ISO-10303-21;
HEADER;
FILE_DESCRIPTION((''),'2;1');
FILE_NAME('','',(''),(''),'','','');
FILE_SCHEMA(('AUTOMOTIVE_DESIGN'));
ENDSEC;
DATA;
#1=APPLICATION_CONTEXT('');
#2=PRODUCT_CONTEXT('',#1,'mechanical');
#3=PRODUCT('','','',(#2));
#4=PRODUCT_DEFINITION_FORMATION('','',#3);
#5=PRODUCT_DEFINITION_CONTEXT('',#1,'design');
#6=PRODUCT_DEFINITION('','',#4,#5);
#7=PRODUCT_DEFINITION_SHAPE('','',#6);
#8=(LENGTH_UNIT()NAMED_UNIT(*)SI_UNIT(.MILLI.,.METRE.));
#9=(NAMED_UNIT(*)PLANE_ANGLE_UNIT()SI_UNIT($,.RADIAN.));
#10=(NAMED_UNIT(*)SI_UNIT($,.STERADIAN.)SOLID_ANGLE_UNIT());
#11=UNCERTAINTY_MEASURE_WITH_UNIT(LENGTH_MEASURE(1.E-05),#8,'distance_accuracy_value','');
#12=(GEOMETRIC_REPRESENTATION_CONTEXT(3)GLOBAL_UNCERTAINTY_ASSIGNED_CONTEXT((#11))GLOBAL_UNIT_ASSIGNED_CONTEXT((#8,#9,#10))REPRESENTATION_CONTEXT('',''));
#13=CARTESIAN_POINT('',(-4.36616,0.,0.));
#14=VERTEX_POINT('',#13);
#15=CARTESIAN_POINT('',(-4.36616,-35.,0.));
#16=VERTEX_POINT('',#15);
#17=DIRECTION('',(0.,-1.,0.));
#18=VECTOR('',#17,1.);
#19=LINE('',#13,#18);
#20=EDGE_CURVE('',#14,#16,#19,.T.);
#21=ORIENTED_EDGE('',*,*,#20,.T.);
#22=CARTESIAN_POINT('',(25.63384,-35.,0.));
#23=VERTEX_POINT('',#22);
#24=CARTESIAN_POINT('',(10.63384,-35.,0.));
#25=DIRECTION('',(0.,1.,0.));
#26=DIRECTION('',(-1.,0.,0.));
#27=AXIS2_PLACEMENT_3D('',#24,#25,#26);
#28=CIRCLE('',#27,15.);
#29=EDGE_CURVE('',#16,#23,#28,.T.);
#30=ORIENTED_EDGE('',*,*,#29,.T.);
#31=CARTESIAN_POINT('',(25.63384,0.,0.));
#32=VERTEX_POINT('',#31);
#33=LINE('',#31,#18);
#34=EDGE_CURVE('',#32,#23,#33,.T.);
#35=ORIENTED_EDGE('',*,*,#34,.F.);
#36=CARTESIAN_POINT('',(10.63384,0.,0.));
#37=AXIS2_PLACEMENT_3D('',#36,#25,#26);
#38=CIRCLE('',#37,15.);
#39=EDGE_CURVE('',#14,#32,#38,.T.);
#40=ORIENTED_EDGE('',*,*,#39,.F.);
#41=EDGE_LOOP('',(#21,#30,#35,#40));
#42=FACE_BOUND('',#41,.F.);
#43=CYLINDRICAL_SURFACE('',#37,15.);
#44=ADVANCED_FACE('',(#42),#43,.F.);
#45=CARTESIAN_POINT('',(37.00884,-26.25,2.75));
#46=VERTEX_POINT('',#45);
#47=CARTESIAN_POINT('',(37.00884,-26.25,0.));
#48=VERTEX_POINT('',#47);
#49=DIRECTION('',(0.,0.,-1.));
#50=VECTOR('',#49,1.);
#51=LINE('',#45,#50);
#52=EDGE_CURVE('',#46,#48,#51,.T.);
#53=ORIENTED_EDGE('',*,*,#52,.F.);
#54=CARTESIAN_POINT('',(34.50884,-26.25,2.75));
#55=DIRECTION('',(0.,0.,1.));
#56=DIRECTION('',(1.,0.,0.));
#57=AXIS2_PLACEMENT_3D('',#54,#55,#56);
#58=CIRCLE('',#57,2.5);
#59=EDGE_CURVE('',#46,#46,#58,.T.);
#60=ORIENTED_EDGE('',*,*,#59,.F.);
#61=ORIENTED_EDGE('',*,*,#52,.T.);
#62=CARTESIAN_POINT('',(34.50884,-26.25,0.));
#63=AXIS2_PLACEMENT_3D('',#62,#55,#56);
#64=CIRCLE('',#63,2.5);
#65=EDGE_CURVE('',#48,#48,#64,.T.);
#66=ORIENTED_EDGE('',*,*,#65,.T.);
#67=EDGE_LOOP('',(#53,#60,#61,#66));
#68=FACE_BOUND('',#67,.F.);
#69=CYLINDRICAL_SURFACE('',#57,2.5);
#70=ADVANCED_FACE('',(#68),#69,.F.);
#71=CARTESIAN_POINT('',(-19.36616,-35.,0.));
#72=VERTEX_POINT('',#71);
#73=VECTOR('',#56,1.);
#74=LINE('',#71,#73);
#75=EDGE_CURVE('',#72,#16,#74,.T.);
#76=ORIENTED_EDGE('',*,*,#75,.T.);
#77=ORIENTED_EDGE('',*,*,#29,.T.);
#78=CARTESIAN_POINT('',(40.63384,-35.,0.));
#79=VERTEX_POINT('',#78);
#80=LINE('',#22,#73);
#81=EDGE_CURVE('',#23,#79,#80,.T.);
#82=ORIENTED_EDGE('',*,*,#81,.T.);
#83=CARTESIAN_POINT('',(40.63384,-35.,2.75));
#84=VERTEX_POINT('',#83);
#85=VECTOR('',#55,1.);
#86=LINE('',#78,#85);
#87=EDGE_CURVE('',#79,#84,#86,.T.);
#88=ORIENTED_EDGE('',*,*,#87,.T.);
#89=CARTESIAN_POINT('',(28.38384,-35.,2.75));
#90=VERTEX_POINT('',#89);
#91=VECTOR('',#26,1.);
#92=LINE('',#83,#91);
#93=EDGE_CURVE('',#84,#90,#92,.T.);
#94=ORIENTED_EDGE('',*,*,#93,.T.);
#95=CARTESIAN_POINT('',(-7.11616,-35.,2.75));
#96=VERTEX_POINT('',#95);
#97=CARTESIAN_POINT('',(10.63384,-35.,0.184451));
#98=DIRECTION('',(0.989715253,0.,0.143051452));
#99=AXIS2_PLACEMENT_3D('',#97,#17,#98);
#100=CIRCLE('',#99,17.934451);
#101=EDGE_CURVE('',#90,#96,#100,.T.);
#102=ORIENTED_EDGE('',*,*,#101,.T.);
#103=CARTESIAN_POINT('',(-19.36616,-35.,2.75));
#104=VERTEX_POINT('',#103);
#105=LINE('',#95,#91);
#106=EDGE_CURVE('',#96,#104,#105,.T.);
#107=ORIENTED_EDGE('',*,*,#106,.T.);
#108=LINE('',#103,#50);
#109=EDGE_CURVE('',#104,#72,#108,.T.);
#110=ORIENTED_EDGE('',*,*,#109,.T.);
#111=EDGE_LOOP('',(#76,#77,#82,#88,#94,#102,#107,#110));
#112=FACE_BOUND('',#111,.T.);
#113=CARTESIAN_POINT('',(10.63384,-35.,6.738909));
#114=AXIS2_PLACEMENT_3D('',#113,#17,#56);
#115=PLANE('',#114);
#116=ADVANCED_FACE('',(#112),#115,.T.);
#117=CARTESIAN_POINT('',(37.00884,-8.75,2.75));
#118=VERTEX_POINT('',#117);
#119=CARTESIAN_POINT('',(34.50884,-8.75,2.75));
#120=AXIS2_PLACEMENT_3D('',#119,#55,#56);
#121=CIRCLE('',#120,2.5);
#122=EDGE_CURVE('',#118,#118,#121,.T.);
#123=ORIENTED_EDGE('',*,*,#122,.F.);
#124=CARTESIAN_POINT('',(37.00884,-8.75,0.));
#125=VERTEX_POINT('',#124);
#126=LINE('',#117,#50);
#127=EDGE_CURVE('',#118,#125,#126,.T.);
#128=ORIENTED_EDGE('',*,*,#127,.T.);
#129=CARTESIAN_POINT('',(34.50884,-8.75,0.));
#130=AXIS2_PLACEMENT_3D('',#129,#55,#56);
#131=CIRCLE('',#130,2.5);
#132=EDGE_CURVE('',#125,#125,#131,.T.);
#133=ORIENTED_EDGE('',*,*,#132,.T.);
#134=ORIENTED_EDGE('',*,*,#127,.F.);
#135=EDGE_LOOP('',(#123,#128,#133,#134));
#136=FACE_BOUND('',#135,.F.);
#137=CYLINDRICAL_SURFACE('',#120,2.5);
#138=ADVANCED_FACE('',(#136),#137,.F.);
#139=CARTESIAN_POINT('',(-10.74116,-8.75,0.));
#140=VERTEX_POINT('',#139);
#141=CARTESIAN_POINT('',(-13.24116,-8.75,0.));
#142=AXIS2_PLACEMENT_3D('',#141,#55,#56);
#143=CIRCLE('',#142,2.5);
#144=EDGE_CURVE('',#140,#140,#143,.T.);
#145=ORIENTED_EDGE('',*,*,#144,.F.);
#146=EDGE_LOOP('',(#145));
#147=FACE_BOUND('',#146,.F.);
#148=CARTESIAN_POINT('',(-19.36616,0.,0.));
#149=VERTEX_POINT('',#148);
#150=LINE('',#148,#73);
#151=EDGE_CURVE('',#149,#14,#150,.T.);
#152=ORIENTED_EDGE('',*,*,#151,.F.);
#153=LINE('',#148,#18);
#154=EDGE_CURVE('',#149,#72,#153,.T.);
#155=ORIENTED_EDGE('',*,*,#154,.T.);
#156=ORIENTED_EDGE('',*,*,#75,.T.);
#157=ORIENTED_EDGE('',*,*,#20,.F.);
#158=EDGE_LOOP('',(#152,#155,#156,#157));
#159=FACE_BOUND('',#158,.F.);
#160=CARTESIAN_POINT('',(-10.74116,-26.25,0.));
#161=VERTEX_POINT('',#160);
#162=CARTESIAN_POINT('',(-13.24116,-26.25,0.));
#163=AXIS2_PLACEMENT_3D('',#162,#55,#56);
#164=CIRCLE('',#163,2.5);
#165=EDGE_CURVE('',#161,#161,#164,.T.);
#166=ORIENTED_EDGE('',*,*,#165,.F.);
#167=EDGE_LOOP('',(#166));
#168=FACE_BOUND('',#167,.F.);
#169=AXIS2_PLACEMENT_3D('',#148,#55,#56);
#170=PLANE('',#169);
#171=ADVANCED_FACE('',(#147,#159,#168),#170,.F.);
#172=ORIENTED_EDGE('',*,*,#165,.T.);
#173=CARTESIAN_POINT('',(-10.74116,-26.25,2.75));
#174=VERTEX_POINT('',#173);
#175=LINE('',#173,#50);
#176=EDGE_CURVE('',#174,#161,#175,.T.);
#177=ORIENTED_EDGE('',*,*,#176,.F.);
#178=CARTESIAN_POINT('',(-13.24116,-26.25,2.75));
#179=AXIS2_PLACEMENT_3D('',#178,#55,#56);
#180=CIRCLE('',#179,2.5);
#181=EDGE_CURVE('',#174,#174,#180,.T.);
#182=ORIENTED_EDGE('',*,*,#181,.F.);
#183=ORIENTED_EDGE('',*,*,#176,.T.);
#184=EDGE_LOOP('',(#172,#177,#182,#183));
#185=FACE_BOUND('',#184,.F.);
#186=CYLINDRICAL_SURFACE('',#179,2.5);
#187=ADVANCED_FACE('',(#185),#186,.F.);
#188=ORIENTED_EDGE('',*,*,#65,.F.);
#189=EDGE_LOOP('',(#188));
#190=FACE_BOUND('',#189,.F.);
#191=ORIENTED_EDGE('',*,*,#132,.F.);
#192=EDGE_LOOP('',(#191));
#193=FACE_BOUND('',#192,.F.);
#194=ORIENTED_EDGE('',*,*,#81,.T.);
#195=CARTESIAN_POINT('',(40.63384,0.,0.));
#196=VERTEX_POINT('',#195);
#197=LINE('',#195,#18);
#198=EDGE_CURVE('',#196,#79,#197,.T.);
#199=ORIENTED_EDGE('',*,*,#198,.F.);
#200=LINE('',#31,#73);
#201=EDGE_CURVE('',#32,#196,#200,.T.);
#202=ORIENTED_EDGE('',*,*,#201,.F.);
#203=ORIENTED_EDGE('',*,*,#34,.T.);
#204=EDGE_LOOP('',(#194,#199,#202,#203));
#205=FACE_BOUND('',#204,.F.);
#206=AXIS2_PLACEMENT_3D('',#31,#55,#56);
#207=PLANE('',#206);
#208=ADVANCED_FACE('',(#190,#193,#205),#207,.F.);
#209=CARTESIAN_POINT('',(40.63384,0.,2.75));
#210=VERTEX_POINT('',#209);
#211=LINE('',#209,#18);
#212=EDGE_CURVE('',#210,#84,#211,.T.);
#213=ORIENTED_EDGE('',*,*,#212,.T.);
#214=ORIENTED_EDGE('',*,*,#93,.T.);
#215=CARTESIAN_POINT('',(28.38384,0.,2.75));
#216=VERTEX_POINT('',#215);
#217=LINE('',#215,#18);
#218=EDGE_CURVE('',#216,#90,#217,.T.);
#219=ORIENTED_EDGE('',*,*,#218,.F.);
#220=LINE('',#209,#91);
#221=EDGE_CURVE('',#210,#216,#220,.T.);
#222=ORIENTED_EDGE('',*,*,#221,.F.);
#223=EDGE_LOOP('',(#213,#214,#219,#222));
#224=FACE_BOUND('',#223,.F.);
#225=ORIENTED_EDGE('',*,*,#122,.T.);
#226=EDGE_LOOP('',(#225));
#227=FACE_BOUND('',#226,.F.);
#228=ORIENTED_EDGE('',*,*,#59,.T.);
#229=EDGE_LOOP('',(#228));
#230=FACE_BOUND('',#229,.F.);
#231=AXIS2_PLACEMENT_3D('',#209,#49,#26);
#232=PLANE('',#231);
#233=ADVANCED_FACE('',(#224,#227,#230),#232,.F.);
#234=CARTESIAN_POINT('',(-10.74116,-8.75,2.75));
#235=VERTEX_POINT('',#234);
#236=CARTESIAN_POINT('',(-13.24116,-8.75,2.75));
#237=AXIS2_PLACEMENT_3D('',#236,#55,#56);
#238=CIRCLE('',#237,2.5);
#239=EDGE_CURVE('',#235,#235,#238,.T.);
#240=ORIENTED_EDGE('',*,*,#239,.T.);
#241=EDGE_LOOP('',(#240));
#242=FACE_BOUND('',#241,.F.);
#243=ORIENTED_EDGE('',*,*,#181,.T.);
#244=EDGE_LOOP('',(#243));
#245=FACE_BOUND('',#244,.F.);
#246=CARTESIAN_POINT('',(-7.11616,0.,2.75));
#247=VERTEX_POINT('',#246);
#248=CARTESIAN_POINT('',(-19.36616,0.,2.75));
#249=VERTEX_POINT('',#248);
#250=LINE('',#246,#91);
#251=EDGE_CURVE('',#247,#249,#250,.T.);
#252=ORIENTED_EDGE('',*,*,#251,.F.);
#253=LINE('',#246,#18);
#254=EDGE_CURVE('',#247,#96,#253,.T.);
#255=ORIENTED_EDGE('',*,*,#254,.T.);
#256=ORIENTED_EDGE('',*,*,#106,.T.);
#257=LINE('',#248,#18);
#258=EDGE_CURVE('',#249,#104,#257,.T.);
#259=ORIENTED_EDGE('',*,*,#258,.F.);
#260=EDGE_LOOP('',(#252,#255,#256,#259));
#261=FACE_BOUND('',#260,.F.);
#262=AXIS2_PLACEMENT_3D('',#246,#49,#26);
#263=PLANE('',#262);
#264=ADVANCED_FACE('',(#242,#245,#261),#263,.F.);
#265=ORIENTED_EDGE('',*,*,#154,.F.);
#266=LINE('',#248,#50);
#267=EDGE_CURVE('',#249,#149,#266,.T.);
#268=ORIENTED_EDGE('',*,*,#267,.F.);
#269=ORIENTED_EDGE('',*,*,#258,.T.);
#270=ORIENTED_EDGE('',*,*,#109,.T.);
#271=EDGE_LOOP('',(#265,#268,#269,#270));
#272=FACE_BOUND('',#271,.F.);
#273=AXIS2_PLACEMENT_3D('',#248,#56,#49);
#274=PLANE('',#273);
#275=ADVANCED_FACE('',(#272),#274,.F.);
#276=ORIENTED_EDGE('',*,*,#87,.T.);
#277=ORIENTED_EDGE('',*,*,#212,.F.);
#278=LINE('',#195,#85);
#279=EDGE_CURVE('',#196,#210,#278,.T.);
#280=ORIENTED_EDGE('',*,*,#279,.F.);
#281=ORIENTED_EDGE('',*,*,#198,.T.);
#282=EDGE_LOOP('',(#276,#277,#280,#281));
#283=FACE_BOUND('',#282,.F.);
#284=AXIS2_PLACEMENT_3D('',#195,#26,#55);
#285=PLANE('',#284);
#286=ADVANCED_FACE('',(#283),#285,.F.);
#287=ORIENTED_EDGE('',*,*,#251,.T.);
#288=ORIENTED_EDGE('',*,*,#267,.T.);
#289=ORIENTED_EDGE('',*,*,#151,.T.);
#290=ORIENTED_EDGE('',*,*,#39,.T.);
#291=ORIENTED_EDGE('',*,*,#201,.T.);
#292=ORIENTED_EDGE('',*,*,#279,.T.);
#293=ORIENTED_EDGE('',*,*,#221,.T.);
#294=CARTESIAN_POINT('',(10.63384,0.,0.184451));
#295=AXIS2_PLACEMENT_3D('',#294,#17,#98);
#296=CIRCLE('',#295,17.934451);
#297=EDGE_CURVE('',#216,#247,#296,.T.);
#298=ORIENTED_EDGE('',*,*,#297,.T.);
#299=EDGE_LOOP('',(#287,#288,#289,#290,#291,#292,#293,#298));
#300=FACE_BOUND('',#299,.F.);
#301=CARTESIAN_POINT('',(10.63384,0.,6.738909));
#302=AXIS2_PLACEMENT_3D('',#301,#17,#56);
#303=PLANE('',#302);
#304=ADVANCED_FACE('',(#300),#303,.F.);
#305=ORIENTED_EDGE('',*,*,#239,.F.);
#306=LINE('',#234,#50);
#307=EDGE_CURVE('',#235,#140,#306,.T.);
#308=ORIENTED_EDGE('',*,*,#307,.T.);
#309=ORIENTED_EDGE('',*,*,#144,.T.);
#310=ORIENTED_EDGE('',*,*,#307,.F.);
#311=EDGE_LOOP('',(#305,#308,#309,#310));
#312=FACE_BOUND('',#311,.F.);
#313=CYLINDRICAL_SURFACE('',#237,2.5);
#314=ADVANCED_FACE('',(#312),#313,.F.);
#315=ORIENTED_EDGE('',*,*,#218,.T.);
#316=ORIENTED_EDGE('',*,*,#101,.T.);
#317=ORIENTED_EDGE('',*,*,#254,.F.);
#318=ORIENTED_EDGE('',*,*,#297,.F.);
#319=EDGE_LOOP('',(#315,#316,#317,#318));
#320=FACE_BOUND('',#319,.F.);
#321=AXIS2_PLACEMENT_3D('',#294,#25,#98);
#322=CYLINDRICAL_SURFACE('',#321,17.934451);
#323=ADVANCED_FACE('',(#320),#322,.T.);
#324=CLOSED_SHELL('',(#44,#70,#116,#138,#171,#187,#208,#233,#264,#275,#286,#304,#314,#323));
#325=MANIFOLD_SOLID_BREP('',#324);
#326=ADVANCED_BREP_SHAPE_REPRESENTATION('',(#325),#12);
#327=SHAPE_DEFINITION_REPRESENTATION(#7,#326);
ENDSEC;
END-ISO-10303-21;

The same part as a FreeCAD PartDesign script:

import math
import FreeCAD as App
import Part
import Sketcher
Q = App.Units.Quantity

doc = App.newDocument("Part")
body = doc.addObject("PartDesign::Body", "Body")

sketch1 = body.newObject("Sketcher::SketchObject", "Sketch")
sketch1.AttachmentSupport = (doc.getObject("XZ_Plane"), [""])
sketch1.MapMode = "FlatFace"
sketch1.addGeometry([
    Part.LineSegment(App.Vector(-19.4, 2.8, 0), App.Vector(-19.4, 0, 0)),
    Part.LineSegment(App.Vector(-19.4, 0, 0), App.Vector(-4.4, 0, 0)),
    Part.ArcOfCircle(Part.Circle(App.Vector(10.6, 0, 0), App.Vector(0, 0, 1), 15), math.radians(0), math.radians(180)),
    Part.LineSegment(App.Vector(25.6, 0, 0), App.Vector(40.6, 0, 0)),
    Part.LineSegment(App.Vector(40.6, 0, 0), App.Vector(40.6, 2.8, 0)),
    Part.LineSegment(App.Vector(40.6, 2.8, 0), App.Vector(28.4, 2.8, 0)),
    Part.ArcOfCircle(Part.Circle(App.Vector(10.6, 0.2, 0), App.Vector(0, 0, 1), 17.9), math.radians(8), math.radians(172)),
    Part.LineSegment(App.Vector(-7.1, 2.8, 0), App.Vector(-19.4, 2.8, 0)),
], False)
sketch1.addConstraint([
    Sketcher.Constraint("Coincident", 0, 2, 1, 1),
    Sketcher.Constraint("Coincident", 1, 2, 2, 2),
    Sketcher.Constraint("Coincident", 2, 1, 3, 1),
    Sketcher.Constraint("Coincident", 3, 2, 4, 1),
    Sketcher.Constraint("Coincident", 4, 2, 5, 1),
    Sketcher.Constraint("Coincident", 5, 2, 6, 1),
    Sketcher.Constraint("Coincident", 6, 2, 7, 1),
    Sketcher.Constraint("Coincident", 7, 2, 0, 1),
    Sketcher.Constraint("Vertical", 0),
    Sketcher.Constraint("Horizontal", 1),
    Sketcher.Constraint("Horizontal", 3),
    Sketcher.Constraint("Vertical", 4),
    Sketcher.Constraint("Horizontal", 5),
    Sketcher.Constraint("Horizontal", 7),
    Sketcher.Constraint("PointOnObject", 2, 3, -1),
    Sketcher.Constraint("PointOnObject", 0, 2, -1),
    Sketcher.Constraint("PointOnObject", 2, 1, -1),
    Sketcher.Constraint("Horizontal", 5, 2, 6, 2),
    Sketcher.Constraint("Vertical", 2, 3, 6, 3),
    Sketcher.Constraint("Equal", 1, 3),
    Sketcher.Constraint("Radius", 2, Q("15 mm")),
    Sketcher.Constraint("DistanceX", 1, 1, 1, 2, Q("15 mm")),
    Sketcher.Constraint("DistanceX", 5, 2, 5, 1, Q("12.25 mm")),
    Sketcher.Constraint("DistanceY", 0, 2, 0, 1, Q("2.75 mm")),
    Sketcher.Constraint("Radius", 6, Q("17.934451 mm")),
    Sketcher.Constraint("DistanceX", -1, 1, 2, 3, Q("10.63384 mm")),
])
pad1 = body.newObject("PartDesign::Pad", "Pad")
pad1.Profile = sketch1
pad1.Length = 35

sketch2 = body.newObject("Sketcher::SketchObject", "Sketch001")
sketch2.AttachmentSupport = (doc.getObject("XY_Plane"), [""])
sketch2.MapMode = "FlatFace"
sketch2.AttachmentOffset = App.Placement(App.Vector(0, 0, 2.75), App.Rotation())
sketch2.addGeometry([
    Part.Circle(App.Vector(-13.2, -8.8, 0), App.Vector(0, 0, 1), 2.5),
    Part.Circle(App.Vector(-13.2, -26.2, 0), App.Vector(0, 0, 1), 2.5),
    Part.Circle(App.Vector(34.5, -8.8, 0), App.Vector(0, 0, 1), 2.5),
    Part.Circle(App.Vector(34.5, -26.2, 0), App.Vector(0, 0, 1), 2.5),
], False)
sketch2.addConstraint([
    Sketcher.Constraint("Equal", 0, 1),
    Sketcher.Constraint("Equal", 1, 2),
    Sketcher.Constraint("Equal", 2, 3),
    Sketcher.Constraint("Horizontal", 0, 3, 2, 3),
    Sketcher.Constraint("Horizontal", 1, 3, 3, 3),
    Sketcher.Constraint("Vertical", 0, 3, 1, 3),
    Sketcher.Constraint("Vertical", 2, 3, 3, 3),
    Sketcher.Constraint("Diameter", 0, Q("5 mm")),
    Sketcher.Constraint("DistanceY", 1, 3, 0, 3, Q("17.5 mm")),
    Sketcher.Constraint("DistanceY", 0, 3, -1, 1, Q("8.75 mm")),
    Sketcher.Constraint("DistanceX", 0, 3, 2, 3, Q("47.75 mm")),
    Sketcher.Constraint("DistanceX", 0, 3, -1, 1, Q("13.24116 mm")),
])
pocket1 = body.newObject("PartDesign::Pocket", "Pocket")
pocket1.Profile = sketch2
pocket1.Type = "ThroughAll"

doc.recompute()
